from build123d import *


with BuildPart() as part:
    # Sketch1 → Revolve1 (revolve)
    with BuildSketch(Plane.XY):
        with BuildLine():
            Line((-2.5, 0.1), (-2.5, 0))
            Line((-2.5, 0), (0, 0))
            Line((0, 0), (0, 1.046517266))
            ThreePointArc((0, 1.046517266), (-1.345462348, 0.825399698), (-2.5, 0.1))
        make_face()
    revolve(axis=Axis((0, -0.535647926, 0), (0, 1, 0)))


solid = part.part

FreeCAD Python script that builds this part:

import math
import FreeCAD as App
import Part
import Sketcher

V = App.Vector

doc = App.newDocument("Part")
params = doc.addObject("Spreadsheet::Sheet", "Params")
for row, (alias, value) in enumerate([
    ("sketch1_width", "2.5 mm"),
    ("sketch1_height", "0.1 mm"),
    ("revolution_angle", "360 deg"),
], start=1):
    params.set(f"A{row}", alias)
    params.set(f"B{row}", "=" + value)
    params.setAlias(f"B{row}", alias)

body = doc.addObject("PartDesign::Body", "Body")

# Sketch on XY plane
sketch1 = body.newObject("Sketcher::SketchObject", "Sketch")
sketch1.AttachmentSupport = (doc.getObject("XY_Plane"), [""])
sketch1.MapMode = "FlatFace"
sketch1.addGeometry([
    Part.LineSegment(V(-2.5, 0.1, 0), V(-2.5, 0, 0)),
    Part.LineSegment(V(-2.5, 0, 0), V(0, 0, 0)),
    Part.LineSegment(V(0, 0, 0), V(0, 1.05, 0)),
    Part.ArcOfCircle(Part.Circle(V(-0.12, -2.4, 0), V(0, 0, 1), 3.45), math.radians(88), math.radians(134)),
], False)
sketch1.addConstraint([
    Sketcher.Constraint("Coincident", 0, 2, 1, 1),
    Sketcher.Constraint("Coincident", 1, 2, 2, 1),
    Sketcher.Constraint("Coincident", 2, 2, 3, 1),
    Sketcher.Constraint("Coincident", 3, 2, 0, 1),
    Sketcher.Constraint("Vertical", 0),
    Sketcher.Constraint("Horizontal", 1),
    Sketcher.Constraint("Vertical", 2),
    Sketcher.Constraint("Coincident", 1, 2, -1, 1),
    Sketcher.Constraint("DistanceX", 1, 1, 1, 2, 2.5),
    Sketcher.Constraint("DistanceY", 0, 2, 0, 1, 0.1),
    Sketcher.Constraint("Radius", 3, 3.447905),
    Sketcher.Constraint("DistanceY", 2, 1, 2, 2, 1.046517),
])
sketch1.setExpression("Constraints[8]", "Params.sketch1_width")
sketch1.setExpression("Constraints[9]", "Params.sketch1_height")
revolution = body.newObject("PartDesign::Revolution", "Revolution")
revolution.Profile = sketch1
revolution.ReferenceAxis = (sketch1, ["V_Axis"])
revolution.setExpression("Angle", "Params.revolution_angle")

doc.recompute()
